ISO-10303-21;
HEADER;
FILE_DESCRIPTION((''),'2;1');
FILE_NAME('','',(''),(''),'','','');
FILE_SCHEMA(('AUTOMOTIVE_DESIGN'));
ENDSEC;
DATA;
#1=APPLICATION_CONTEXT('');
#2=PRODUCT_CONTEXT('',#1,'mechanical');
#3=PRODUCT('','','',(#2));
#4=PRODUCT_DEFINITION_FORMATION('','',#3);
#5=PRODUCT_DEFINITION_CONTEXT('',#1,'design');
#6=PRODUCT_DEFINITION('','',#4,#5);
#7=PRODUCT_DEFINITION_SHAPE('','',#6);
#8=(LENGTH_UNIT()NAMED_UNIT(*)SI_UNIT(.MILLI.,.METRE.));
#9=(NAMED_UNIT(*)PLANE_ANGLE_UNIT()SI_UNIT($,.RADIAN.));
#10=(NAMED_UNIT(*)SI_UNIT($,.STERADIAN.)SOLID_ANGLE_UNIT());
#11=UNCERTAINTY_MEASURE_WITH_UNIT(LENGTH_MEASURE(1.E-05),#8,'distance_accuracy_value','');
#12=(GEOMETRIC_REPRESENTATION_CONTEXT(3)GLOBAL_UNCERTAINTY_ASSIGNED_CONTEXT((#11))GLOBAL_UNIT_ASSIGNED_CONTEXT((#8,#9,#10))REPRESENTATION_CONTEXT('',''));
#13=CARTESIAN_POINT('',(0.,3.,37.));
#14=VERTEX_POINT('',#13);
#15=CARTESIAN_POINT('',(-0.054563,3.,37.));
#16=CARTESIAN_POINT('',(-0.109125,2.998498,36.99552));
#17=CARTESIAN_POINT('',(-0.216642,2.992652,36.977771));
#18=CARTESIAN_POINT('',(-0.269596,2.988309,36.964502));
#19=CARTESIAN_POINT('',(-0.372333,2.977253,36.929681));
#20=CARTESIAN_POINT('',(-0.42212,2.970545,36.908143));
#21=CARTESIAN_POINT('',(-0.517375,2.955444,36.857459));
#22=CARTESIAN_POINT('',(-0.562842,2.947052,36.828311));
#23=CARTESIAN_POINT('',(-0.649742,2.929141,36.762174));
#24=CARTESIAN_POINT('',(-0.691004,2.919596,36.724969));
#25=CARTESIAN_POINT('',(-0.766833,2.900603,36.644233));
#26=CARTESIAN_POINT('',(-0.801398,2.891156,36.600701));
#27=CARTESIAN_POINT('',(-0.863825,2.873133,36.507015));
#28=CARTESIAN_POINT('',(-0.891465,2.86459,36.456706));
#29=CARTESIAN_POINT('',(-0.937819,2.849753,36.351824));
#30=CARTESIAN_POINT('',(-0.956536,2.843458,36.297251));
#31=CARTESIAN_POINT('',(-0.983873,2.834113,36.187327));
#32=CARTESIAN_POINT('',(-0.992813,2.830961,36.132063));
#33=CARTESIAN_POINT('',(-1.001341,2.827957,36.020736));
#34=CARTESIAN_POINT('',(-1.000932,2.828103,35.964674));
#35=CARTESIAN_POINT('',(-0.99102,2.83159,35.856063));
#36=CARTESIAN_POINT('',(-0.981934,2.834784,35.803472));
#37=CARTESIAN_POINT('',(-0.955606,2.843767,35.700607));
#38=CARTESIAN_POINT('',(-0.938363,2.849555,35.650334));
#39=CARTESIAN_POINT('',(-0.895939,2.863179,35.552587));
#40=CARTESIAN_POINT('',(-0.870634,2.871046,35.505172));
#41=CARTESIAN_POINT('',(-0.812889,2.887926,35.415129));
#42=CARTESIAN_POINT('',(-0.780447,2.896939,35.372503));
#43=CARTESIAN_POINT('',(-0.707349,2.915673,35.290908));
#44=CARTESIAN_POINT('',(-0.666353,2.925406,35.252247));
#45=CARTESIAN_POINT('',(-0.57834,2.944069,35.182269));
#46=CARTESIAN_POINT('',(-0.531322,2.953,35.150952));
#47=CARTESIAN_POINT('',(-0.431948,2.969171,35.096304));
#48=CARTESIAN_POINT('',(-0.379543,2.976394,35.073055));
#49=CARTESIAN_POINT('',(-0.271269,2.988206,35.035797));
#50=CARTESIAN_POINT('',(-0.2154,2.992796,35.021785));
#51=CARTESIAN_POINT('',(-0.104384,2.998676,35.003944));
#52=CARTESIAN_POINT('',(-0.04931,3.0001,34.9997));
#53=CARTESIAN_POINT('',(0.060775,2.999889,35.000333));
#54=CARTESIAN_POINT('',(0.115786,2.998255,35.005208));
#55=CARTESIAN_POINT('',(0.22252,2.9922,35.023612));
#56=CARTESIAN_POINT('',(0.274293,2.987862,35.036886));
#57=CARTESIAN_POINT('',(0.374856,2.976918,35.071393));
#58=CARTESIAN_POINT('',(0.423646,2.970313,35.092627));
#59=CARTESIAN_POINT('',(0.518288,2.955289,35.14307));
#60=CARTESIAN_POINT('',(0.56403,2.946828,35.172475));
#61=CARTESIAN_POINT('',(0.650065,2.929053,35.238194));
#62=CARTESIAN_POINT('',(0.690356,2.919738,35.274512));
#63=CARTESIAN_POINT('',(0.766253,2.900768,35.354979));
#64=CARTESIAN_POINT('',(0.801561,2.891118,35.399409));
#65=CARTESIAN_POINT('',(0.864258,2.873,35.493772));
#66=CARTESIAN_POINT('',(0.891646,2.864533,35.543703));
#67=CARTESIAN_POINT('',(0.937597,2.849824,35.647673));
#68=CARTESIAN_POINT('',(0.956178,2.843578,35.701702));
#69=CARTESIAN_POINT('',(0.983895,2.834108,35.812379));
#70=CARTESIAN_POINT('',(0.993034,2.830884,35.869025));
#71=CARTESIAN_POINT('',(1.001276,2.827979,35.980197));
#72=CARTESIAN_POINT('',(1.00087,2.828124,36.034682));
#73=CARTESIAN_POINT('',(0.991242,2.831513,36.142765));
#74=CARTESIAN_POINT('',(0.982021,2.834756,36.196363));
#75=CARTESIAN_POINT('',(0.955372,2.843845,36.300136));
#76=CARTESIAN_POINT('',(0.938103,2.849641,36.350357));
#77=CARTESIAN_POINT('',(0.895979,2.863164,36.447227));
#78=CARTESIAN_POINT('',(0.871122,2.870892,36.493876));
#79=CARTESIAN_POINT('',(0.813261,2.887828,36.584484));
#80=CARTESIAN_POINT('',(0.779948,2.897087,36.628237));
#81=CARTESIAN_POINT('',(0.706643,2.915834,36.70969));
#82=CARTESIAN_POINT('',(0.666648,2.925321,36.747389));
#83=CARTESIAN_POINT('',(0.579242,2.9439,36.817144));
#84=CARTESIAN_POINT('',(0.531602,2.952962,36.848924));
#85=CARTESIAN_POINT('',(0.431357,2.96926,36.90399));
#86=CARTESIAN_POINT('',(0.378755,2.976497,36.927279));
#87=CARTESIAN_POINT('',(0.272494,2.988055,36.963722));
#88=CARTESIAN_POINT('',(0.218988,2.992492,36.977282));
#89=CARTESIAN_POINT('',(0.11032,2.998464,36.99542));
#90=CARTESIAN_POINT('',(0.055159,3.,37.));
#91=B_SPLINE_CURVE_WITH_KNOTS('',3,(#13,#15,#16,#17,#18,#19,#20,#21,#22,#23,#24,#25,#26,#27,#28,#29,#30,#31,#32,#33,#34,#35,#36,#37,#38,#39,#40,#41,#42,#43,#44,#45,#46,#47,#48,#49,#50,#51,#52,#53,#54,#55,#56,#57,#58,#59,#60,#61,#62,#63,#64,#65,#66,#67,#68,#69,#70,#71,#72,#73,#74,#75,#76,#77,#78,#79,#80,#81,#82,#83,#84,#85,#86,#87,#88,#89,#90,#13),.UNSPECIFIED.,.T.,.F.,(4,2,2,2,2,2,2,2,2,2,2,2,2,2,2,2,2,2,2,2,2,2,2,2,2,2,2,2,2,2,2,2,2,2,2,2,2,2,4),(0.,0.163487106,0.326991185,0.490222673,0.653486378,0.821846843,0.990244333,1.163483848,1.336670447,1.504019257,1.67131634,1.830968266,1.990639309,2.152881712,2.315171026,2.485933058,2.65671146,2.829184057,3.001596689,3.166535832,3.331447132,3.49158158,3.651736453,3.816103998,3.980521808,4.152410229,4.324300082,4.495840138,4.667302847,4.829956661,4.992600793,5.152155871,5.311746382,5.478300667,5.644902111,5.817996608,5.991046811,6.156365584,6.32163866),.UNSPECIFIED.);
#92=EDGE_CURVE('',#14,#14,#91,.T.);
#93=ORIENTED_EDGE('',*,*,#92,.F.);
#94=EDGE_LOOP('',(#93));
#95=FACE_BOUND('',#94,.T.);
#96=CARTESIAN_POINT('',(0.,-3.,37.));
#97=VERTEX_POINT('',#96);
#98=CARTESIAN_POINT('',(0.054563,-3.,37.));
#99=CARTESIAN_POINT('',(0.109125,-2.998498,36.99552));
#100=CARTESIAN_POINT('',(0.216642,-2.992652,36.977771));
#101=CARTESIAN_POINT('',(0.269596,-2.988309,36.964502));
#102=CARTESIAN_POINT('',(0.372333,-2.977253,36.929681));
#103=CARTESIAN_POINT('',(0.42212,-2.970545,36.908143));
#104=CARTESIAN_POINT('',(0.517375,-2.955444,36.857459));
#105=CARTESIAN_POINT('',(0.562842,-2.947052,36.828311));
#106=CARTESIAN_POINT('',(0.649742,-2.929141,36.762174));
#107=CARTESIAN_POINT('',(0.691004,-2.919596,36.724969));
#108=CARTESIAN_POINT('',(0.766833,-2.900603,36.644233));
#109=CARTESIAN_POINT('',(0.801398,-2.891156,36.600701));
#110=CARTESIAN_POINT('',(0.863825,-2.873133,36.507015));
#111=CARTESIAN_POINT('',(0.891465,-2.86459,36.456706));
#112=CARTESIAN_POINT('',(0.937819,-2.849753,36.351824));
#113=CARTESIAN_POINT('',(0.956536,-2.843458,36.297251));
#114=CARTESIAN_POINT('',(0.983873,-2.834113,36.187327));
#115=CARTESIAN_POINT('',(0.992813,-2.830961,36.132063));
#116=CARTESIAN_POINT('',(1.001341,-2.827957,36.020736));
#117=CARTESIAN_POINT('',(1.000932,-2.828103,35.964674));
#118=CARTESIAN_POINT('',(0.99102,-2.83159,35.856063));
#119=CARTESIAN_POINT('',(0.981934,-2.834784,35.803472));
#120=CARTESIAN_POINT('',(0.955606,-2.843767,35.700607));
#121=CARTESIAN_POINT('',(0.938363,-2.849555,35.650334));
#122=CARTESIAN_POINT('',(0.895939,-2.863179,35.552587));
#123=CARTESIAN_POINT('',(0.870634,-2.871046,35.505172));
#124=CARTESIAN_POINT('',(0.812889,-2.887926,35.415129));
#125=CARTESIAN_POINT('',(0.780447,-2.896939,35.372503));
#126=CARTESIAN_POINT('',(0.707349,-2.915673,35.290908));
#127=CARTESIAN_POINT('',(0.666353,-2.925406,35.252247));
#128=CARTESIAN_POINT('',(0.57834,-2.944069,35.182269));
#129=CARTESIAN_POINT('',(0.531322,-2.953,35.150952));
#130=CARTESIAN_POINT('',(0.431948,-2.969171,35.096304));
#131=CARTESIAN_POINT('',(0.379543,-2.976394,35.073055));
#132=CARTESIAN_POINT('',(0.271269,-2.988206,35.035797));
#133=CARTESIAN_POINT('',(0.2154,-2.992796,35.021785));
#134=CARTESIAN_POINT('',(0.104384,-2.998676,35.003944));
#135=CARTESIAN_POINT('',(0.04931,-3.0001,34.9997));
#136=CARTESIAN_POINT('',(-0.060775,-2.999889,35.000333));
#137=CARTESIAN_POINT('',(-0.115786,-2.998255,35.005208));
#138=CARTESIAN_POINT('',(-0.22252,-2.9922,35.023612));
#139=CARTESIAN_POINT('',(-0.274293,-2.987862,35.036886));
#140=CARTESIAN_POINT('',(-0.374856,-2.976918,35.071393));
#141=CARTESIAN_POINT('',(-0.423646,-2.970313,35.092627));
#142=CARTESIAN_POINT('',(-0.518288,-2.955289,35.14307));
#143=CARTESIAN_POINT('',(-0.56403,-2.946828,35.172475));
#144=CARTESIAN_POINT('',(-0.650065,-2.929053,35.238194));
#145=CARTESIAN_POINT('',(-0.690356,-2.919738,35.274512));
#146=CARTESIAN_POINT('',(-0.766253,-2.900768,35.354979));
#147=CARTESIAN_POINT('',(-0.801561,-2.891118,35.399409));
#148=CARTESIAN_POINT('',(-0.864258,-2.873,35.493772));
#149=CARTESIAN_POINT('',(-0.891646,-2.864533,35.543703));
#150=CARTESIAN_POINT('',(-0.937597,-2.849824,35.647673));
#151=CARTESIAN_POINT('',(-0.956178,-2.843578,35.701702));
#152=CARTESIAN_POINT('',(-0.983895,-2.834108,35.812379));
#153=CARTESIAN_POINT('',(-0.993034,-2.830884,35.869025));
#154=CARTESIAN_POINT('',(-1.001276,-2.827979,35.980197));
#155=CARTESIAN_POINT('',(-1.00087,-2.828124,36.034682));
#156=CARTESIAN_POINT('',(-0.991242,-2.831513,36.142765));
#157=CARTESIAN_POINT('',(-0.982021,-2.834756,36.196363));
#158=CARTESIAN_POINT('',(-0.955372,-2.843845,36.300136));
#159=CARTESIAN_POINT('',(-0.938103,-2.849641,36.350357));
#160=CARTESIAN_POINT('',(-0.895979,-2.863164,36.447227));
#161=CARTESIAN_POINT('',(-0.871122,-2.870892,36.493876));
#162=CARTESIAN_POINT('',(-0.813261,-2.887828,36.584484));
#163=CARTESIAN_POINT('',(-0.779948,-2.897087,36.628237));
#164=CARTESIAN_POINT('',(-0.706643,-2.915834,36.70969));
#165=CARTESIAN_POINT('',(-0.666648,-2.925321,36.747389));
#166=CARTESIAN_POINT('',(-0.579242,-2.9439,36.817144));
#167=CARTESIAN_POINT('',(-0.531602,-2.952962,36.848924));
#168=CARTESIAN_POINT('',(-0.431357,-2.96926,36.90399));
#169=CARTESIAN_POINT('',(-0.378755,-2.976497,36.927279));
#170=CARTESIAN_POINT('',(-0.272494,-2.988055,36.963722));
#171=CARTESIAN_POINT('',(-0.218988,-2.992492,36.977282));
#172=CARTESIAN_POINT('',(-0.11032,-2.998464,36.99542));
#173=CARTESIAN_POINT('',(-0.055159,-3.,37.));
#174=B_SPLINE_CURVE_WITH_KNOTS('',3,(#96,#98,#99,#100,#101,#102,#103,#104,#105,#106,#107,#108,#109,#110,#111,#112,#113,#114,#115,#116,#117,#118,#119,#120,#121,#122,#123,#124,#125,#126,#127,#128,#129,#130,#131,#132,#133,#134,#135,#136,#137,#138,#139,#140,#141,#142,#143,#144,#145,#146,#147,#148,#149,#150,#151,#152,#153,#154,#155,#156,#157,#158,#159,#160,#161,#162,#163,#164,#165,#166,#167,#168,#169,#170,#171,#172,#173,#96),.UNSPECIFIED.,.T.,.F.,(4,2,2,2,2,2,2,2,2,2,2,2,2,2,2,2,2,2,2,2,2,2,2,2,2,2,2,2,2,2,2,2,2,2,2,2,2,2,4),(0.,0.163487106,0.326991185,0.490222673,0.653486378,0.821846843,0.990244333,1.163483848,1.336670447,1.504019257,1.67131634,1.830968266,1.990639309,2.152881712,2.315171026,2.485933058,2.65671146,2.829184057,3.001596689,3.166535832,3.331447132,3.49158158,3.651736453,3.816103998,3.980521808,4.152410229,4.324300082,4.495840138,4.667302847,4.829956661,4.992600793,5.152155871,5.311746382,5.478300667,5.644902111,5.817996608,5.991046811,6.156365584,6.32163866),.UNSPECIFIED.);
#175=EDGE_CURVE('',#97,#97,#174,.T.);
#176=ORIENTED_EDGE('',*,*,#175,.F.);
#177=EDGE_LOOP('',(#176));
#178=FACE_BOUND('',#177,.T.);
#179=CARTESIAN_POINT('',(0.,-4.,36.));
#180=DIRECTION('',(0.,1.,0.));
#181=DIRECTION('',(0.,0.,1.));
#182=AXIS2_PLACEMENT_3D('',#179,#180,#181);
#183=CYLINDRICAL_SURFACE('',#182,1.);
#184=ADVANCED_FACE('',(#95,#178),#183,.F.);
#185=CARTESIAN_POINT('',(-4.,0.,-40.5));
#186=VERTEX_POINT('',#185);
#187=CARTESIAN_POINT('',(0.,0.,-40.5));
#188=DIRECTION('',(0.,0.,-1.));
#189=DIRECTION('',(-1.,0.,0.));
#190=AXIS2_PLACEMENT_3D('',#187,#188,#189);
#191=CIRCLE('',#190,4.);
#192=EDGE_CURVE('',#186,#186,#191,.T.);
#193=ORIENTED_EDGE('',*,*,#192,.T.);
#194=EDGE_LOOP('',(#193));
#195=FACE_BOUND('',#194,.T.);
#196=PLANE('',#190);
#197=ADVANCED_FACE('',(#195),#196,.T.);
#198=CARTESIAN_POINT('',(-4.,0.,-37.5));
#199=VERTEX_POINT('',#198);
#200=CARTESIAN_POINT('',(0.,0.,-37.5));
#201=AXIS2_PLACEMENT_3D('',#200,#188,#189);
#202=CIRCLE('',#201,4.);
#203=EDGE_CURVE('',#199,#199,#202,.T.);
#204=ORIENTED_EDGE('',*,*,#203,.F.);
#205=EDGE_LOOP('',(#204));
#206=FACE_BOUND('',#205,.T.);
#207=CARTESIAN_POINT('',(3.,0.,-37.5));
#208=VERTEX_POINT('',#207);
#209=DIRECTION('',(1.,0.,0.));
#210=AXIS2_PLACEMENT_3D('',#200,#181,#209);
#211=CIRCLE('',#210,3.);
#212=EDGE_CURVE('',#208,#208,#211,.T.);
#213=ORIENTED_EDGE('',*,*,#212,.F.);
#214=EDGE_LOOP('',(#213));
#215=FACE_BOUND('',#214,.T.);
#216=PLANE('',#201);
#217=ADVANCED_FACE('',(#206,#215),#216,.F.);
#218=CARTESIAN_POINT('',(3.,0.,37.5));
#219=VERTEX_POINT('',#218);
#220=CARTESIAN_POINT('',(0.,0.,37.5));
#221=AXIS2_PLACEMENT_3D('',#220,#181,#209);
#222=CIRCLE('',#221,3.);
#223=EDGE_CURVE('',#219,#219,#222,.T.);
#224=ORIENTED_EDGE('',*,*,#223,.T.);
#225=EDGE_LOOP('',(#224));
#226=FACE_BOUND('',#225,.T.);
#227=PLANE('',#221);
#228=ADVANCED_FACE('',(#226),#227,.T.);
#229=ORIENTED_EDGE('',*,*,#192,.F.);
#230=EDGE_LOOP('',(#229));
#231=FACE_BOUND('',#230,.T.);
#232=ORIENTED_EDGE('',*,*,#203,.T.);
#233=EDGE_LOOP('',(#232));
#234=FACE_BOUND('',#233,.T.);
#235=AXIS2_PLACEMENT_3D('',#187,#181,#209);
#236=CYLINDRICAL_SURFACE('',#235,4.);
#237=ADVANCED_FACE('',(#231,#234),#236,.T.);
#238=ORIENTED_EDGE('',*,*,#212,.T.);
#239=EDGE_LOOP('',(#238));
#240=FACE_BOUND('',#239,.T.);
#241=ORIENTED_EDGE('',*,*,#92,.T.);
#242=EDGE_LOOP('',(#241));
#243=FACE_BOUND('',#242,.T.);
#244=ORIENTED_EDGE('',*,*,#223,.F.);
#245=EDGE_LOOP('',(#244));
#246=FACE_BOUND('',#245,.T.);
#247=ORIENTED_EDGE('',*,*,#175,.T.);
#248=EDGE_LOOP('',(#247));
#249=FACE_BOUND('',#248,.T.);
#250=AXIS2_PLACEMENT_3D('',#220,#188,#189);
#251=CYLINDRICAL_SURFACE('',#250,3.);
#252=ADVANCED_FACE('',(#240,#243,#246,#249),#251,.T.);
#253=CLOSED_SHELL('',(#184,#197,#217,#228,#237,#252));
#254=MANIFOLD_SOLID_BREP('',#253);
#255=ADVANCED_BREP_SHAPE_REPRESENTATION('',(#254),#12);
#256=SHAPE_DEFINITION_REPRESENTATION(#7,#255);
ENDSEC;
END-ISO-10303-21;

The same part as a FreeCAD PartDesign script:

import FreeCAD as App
import Part
import Sketcher

V = App.Vector

doc = App.newDocument("Part")
body = doc.addObject("PartDesign::Body", "Body")

# Sketch on XY plane
sketch1 = doc.addObject("Sketcher::SketchObject", "Sketch")
body.addObject(sketch1)
sketch1.AttachmentSupport = (doc.XY_Plane, [""])
sketch1.MapMode = "FlatFace"
sketch1.addGeometry(Part.Circle(V(0, 0, 0), V(0, 0, 1), 3), False)
sketch1.addConstraint(Sketcher.Constraint("Coincident", 0, 3, -1, 1))
sketch1.addConstraint(Sketcher.Constraint("Diameter", 0, 6.0))
pad1 = doc.addObject("PartDesign::Pad", "Pad")
body.addObject(pad1)
pad1.Profile = sketch1
pad1.Length = 75
pad1.Midplane = True

# Sketch on XY plane
sketch2 = doc.addObject("Sketcher::SketchObject", "Sketch001")
body.addObject(sketch2)
sketch2.AttachmentSupport = (doc.XY_Plane, [""])
sketch2.MapMode = "FlatFace"
sketch2.AttachmentOffset = App.Placement(V(0, 0, -37.5), App.Rotation())
sketch2.addGeometry(Part.Circle(V(0, 0, 0), V(0, 0, 1), 4), False)
sketch2.addConstraint(Sketcher.Constraint("Coincident", 0, 3, -1, 1))
sketch2.addConstraint(Sketcher.Constraint("Diameter", 0, 8.0))
pad2 = doc.addObject("PartDesign::Pad", "Pad001")
body.addObject(pad2)
pad2.Profile = sketch2
pad2.Length = 3
pad2.Reversed = True

# Sketch on XZ plane
sketch3 = doc.addObject("Sketcher::SketchObject", "Sketch002")
body.addObject(sketch3)
sketch3.AttachmentSupport = (doc.XZ_Plane, [""])
sketch3.MapMode = "FlatFace"
sketch3.addGeometry(Part.Circle(V(0, 36, 0), V(0, 0, 1), 1), False)
sketch3.addConstraint(Sketcher.Constraint("PointOnObject", 0, 3, -2))
sketch3.addConstraint(Sketcher.Constraint("Diameter", 0, 2.0))
sketch3.addConstraint(Sketcher.Constraint("DistanceY", -1, 1, 0, 3, 36.0))
pocket1 = doc.addObject("PartDesign::Pocket", "Pocket")
body.addObject(pocket1)
pocket1.Profile = sketch3
pocket1.Type = "ThroughAll"
pocket1.Midplane = True

doc.recompute()
